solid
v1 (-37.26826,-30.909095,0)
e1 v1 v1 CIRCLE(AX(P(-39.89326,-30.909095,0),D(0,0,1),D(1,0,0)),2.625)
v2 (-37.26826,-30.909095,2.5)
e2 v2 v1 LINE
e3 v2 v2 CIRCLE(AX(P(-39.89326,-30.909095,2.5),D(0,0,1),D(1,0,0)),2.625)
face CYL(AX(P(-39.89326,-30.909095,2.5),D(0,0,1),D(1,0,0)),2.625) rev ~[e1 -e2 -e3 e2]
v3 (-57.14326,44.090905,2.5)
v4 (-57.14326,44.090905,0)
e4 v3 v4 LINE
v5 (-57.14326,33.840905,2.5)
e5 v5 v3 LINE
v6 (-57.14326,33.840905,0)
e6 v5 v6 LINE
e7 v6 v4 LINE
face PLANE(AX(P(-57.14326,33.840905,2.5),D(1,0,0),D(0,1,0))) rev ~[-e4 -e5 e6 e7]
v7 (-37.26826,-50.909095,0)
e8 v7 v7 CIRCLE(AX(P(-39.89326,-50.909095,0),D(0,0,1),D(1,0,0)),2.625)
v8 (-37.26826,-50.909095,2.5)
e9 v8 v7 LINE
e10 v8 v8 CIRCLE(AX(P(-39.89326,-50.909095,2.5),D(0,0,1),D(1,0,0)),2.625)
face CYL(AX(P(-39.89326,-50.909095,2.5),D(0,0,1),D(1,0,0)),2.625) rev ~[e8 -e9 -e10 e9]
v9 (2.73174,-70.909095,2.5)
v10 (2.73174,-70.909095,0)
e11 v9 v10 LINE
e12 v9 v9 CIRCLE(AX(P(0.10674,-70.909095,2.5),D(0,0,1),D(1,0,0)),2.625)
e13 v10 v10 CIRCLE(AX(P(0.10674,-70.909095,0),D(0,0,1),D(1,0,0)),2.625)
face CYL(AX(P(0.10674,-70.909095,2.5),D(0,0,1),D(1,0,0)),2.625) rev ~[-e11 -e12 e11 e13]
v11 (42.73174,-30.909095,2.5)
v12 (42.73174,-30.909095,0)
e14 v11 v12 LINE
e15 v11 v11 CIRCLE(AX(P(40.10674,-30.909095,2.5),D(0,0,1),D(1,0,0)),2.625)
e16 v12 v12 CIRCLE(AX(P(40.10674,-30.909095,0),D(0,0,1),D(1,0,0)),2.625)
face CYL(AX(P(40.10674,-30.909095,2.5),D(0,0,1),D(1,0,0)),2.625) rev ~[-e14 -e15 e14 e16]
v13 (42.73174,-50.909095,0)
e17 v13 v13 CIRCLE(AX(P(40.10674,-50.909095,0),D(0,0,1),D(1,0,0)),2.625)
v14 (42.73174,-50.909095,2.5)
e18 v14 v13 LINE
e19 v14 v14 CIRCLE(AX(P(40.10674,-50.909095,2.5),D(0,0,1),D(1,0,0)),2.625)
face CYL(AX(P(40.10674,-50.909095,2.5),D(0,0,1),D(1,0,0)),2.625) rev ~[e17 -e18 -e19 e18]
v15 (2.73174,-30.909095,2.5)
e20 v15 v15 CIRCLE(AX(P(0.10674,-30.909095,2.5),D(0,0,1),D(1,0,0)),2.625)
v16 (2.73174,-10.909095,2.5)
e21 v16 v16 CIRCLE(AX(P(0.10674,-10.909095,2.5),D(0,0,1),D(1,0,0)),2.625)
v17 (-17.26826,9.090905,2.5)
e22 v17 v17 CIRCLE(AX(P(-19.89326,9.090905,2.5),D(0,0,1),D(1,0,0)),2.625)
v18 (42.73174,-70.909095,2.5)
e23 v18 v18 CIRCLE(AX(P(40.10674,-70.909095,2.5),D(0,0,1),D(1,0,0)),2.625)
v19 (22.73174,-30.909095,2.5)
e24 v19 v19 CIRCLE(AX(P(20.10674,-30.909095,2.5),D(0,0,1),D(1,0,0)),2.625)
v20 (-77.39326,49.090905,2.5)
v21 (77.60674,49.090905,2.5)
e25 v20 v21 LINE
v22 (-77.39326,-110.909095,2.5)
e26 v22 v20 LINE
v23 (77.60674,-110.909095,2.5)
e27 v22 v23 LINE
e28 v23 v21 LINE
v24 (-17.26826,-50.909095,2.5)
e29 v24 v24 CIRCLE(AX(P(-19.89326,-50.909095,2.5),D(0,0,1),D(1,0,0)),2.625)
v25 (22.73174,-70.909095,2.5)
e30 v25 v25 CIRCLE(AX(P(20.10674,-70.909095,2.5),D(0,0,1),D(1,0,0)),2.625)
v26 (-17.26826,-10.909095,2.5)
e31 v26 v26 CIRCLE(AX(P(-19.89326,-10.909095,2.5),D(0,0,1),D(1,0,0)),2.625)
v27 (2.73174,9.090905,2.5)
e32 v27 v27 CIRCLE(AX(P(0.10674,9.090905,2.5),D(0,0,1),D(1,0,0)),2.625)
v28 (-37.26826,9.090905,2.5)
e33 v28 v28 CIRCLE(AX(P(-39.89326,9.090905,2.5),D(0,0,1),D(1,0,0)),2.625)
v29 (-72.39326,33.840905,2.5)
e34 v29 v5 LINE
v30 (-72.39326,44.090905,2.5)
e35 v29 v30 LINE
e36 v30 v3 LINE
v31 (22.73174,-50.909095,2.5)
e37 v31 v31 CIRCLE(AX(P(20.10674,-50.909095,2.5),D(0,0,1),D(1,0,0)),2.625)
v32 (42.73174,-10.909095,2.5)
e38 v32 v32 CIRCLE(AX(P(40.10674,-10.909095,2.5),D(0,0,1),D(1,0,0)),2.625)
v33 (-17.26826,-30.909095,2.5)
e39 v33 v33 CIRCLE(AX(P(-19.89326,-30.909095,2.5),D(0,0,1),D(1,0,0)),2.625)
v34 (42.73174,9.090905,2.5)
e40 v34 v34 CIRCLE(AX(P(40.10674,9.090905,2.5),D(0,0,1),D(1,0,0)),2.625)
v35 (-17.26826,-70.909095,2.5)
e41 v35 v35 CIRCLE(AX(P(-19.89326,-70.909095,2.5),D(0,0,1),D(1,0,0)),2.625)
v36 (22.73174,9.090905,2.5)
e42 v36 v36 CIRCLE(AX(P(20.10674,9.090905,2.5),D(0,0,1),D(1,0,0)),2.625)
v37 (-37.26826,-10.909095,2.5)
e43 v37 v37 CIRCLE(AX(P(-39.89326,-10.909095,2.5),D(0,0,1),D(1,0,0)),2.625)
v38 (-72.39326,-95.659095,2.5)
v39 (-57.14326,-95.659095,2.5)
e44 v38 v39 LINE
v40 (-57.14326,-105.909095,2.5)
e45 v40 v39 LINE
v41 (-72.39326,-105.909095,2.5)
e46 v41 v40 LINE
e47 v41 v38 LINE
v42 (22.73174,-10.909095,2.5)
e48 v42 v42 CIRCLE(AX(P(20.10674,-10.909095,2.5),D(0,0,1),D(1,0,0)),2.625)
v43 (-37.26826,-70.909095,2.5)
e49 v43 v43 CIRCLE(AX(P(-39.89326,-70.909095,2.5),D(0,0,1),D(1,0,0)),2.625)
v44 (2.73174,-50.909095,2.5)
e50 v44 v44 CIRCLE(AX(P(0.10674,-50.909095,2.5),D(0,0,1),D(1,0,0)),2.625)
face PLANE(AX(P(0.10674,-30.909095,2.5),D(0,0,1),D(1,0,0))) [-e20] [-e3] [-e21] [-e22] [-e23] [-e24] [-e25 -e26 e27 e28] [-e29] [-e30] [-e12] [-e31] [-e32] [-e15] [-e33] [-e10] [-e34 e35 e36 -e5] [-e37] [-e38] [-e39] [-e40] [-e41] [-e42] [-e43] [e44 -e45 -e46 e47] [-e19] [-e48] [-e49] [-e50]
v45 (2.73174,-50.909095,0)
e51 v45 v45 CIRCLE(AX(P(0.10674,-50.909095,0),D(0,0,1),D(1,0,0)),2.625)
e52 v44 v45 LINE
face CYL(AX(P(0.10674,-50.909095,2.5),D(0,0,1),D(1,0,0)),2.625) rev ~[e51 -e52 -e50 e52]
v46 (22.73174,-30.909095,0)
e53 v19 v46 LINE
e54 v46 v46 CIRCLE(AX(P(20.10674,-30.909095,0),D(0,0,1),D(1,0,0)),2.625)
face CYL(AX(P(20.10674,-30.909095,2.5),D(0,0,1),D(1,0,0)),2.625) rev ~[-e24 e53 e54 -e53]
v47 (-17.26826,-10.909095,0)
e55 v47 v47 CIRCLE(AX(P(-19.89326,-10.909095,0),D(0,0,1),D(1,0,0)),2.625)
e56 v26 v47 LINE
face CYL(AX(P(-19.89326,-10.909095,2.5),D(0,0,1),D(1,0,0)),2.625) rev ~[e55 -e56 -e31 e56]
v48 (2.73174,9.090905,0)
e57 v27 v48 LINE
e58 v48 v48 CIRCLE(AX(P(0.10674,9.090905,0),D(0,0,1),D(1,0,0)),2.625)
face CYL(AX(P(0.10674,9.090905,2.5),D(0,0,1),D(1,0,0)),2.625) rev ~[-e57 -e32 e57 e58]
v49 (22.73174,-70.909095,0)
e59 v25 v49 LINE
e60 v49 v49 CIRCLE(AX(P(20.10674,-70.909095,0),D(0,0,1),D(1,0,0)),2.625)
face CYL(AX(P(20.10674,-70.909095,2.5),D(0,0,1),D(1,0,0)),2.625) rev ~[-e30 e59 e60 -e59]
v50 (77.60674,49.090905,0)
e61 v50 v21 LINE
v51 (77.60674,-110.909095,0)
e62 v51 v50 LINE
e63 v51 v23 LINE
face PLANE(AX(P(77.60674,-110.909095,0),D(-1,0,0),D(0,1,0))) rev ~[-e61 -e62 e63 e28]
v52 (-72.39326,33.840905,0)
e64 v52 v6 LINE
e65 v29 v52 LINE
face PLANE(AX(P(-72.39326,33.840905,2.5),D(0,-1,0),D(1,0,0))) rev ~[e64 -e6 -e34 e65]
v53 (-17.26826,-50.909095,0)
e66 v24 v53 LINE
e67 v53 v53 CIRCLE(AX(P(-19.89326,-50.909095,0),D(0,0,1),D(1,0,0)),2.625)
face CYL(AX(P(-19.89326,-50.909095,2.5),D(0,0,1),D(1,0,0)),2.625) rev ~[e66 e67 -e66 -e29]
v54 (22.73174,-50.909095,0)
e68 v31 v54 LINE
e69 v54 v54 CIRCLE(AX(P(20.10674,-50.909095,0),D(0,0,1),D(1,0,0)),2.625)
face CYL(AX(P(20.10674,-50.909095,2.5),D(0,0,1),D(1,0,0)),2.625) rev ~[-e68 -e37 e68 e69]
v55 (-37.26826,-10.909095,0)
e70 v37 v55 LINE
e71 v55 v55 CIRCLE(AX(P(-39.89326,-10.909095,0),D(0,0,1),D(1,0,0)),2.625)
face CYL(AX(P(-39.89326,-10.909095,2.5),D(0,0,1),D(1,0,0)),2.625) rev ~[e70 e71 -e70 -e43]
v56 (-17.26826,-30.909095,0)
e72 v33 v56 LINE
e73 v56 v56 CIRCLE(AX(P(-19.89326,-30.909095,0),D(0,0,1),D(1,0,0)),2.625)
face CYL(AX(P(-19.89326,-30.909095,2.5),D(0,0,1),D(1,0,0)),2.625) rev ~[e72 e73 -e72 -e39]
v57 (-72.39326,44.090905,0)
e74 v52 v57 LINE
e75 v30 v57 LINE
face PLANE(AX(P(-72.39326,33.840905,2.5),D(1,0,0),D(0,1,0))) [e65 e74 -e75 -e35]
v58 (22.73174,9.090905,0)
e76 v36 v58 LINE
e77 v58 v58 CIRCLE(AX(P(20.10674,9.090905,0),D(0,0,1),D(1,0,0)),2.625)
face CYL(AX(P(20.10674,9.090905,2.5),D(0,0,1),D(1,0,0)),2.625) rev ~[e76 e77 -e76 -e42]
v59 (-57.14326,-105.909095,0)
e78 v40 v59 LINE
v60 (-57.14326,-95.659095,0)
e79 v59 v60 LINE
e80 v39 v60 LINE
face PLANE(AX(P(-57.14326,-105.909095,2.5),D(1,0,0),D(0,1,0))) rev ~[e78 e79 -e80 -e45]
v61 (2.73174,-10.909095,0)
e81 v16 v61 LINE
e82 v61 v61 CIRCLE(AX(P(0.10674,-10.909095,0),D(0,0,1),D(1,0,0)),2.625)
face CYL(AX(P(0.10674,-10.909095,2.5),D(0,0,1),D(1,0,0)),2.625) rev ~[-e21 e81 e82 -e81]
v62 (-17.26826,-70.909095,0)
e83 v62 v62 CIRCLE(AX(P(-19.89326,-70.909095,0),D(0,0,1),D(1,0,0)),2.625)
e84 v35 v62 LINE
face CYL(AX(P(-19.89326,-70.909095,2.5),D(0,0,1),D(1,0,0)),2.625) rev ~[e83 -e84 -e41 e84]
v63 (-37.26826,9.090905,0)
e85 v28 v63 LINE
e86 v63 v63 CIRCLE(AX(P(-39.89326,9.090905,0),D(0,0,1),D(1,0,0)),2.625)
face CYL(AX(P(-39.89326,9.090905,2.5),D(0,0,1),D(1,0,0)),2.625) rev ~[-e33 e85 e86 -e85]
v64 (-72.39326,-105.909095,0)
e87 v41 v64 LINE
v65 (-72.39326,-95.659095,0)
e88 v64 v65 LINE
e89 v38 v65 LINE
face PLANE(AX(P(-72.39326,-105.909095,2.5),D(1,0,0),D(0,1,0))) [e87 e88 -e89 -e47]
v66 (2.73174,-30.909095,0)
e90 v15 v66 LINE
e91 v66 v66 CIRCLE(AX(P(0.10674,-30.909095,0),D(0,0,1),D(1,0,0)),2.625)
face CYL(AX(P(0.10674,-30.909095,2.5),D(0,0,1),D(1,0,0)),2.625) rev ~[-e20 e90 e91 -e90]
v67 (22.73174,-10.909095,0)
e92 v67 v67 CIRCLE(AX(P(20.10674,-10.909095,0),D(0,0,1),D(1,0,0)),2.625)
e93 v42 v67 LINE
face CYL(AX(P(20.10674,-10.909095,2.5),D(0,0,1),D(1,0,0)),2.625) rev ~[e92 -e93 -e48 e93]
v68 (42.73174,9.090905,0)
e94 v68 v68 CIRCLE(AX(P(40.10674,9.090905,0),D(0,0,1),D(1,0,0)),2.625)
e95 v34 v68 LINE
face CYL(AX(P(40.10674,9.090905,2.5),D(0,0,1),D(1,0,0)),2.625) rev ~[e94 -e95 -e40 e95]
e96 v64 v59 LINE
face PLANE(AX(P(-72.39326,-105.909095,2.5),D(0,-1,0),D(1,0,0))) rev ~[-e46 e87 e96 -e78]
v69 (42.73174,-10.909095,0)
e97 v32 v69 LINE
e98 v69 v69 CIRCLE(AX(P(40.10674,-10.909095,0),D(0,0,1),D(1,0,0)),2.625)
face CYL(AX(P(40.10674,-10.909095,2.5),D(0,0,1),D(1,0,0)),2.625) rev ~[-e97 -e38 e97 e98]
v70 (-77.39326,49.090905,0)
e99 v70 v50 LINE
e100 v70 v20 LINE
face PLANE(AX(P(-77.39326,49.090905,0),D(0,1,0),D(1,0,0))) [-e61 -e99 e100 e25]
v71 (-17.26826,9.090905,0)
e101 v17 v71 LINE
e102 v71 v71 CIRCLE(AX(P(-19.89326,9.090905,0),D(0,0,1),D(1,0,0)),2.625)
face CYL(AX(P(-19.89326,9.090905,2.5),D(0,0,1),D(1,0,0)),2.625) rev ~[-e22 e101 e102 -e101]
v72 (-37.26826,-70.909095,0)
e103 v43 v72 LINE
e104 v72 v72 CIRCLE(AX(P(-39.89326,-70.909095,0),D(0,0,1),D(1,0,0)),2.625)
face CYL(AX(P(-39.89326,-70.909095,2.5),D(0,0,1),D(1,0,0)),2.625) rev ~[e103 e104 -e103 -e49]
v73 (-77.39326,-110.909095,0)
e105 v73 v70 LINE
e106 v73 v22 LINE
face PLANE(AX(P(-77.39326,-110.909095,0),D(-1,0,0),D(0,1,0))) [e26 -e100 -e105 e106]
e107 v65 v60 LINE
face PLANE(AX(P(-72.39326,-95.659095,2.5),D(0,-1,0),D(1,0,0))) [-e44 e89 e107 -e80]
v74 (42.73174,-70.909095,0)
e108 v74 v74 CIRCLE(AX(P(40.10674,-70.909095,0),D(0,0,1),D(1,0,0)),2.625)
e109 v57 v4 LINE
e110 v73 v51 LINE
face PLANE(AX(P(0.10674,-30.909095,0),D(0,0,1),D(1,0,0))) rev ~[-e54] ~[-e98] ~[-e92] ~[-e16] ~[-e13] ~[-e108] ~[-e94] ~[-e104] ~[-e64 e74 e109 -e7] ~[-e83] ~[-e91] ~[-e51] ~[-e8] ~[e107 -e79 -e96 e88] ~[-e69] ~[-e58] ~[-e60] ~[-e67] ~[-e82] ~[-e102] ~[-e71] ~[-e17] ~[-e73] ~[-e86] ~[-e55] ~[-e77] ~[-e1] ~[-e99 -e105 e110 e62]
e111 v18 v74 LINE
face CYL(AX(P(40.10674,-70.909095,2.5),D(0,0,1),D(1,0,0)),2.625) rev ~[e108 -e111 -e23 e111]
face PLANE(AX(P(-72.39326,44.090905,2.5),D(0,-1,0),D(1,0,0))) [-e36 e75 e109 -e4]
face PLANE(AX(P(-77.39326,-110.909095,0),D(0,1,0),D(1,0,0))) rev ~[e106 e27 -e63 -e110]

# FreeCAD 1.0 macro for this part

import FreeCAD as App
import Part
import Sketcher
from FreeCAD import Vector

doc = App.newDocument("Part")
body = doc.addObject("PartDesign::Body", "Body")

# Sketch on XY plane
sketch1 = body.newObject("Sketcher::SketchObject", "Sketch")
sketch1.AttachmentSupport = (doc.getObject("XY_Plane"), [""])
sketch1.MapMode = "FlatFace"
sketch1.addGeometry(Part.LineSegment(Vector(-77, 49, 0), Vector(-77, -111, 0)), False)
sketch1.addGeometry(Part.LineSegment(Vector(-77, -111, 0), Vector(78, -111, 0)), False)
sketch1.addGeometry(Part.LineSegment(Vector(78, -111, 0), Vector(78, 49, 0)), False)
sketch1.addGeometry(Part.LineSegment(Vector(78, 49, 0), Vector(-77, 49, 0)), False)
sketch1.addConstraint(Sketcher.Constraint("Coincident", 0, 2, 1, 1))
sketch1.addConstraint(Sketcher.Constraint("Coincident", 1, 2, 2, 1))
sketch1.addConstraint(Sketcher.Constraint("Coincident", 2, 2, 3, 1))
sketch1.addConstraint(Sketcher.Constraint("Coincident", 3, 2, 0, 1))
sketch1.addConstraint(Sketcher.Constraint("Vertical", 0))
sketch1.addConstraint(Sketcher.Constraint("Horizontal", 1))
sketch1.addConstraint(Sketcher.Constraint("Vertical", 2))
sketch1.addConstraint(Sketcher.Constraint("Horizontal", 3))
sketch1.addConstraint(Sketcher.Constraint("DistanceX", 1, 1, 1, 2, 155.0))
sketch1.addConstraint(Sketcher.Constraint("DistanceY", 0, 2, 0, 1, 160.0))
sketch1.addConstraint(Sketcher.Constraint("DistanceX", 0, 2, -1, 1, 77.39326))
sketch1.addConstraint(Sketcher.Constraint("DistanceY", 0, 2, -1, 1, 110.909095))
pad1 = body.newObject("PartDesign::Pad", "Pad")
pad1.Profile = sketch1
pad1.Length = 2.5

# Sketch on XY plane
sketch2 = body.newObject("Sketcher::SketchObject", "Sketch001")
sketch2.AttachmentSupport = (doc.getObject("XY_Plane"), [""])
sketch2.MapMode = "FlatFace"
sketch2.AttachmentOffset = App.Placement(Vector(0, 0, 2.5), App.Rotation())
sketch2.addGeometry(Part.LineSegment(Vector(-72, 44, 0), Vector(-72, 34, 0)), False)
sketch2.addGeometry(Part.LineSegment(Vector(-72, 34, 0), Vector(-57, 34, 0)), False)
sketch2.addGeometry(Part.LineSegment(Vector(-57, 34, 0), Vector(-57, 44, 0)), False)
sketch2.addGeometry(Part.LineSegment(Vector(-57, 44, 0), Vector(-72, 44, 0)), False)
sketch2.addGeometry(Part.LineSegment(Vector(-72, -96, 0), Vector(-72, -106, 0)), False)
sketch2.addGeometry(Part.LineSegment(Vector(-72, -106, 0), Vector(-57, -106, 0)), False)
sketch2.addGeometry(Part.LineSegment(Vector(-57, -106, 0), Vector(-57, -96, 0)), False)
sketch2.addGeometry(Part.LineSegment(Vector(-57, -96, 0), Vector(-72, -96, 0)), False)
sketch2.addConstraint(Sketcher.Constraint("Coincident", 0, 2, 1, 1))
sketch2.addConstraint(Sketcher.Constraint("Coincident", 1, 2, 2, 1))
sketch2.addConstraint(Sketcher.Constraint("Coincident", 2, 2, 3, 1))
sketch2.addConstraint(Sketcher.Constraint("Coincident", 3, 2, 0, 1))
sketch2.addConstraint(Sketcher.Constraint("Coincident", 4, 2, 5, 1))
sketch2.addConstraint(Sketcher.Constraint("Coincident", 5, 2, 6, 1))
sketch2.addConstraint(Sketcher.Constraint("Coincident", 6, 2, 7, 1))
sketch2.addConstraint(Sketcher.Constraint("Coincident", 7, 2, 4, 1))
sketch2.addConstraint(Sketcher.Constraint("Vertical", 0))
sketch2.addConstraint(Sketcher.Constraint("Horizontal", 1))
sketch2.addConstraint(Sketcher.Constraint("Vertical", 2))
sketch2.addConstraint(Sketcher.Constraint("Horizontal", 3))
sketch2.addConstraint(Sketcher.Constraint("Vertical", 4))
sketch2.addConstraint(Sketcher.Constraint("Horizontal", 5))
sketch2.addConstraint(Sketcher.Constraint("Vertical", 6))
sketch2.addConstraint(Sketcher.Constraint("Horizontal", 7))
sketch2.addConstraint(Sketcher.Constraint("Vertical", 3, 2, 4, 2))
sketch2.addConstraint(Sketcher.Constraint("Vertical", 2, 2, 5, 2))
sketch2.addConstraint(Sketcher.Constraint("Equal", 2, 4))
sketch2.addConstraint(Sketcher.Constraint("DistanceY", 4, 2, 3, 2, 150.0))
sketch2.addConstraint(Sketcher.Constraint("DistanceX", 1, 1, 1, 2, 15.25))
sketch2.addConstraint(Sketcher.Constraint("DistanceY", 0, 2, 0, 1, 10.25))
sketch2.addConstraint(Sketcher.Constraint("DistanceX", 0, 2, -1, 1, 72.39326))
sketch2.addConstraint(Sketcher.Constraint("DistanceY", -1, 1, 0, 2, 33.840905))
pocket1 = body.newObject("PartDesign::Pocket", "Pocket")
pocket1.Profile = sketch2
pocket1.Length = 2.5

# Sketch on XY plane
sketch3 = body.newObject("Sketcher::SketchObject", "Sketch002")
sketch3.AttachmentSupport = (doc.getObject("XY_Plane"), [""])
sketch3.MapMode = "FlatFace"
sketch3.AttachmentOffset = App.Placement(Vector(0, 0, 2.5), App.Rotation())
sketch3.addGeometry(Part.Circle(Vector(-19.9, -30.9, 0), Vector(0, 0, 1), 2.6), False)
sketch3.addGeometry(Part.Circle(Vector(-39.9, -30.9, 0), Vector(0, 0, 1), 2.6), False)
sketch3.addGeometry(Part.Circle(Vector(0.1, -30.9, 0), Vector(0, 0, 1), 2.6), False)
sketch3.addGeometry(Part.Circle(Vector(20.1, -30.9, 0), Vector(0, 0, 1), 2.6), False)
sketch3.addGeometry(Part.Circle(Vector(40.1, -30.9, 0), Vector(0, 0, 1), 2.6), False)
sketch3.addGeometry(Part.Circle(Vector(-39.9, -10.9, 0), Vector(0, 0, 1), 2.6), False)
sketch3.addGeometry(Part.Circle(Vector(-19.9, -10.9, 0), Vector(0, 0, 1), 2.6), False)
sketch3.addGeometry(Part.Circle(Vector(0.1, -10.9, 0), Vector(0, 0, 1), 2.6), False)
sketch3.addGeometry(Part.Circle(Vector(20.1, -10.9, 0), Vector(0, 0, 1), 2.6), False)
sketch3.addGeometry(Part.Circle(Vector(40.1, -10.9, 0), Vector(0, 0, 1), 2.6), False)
sketch3.addGeometry(Part.Circle(Vector(-39.9, -50.9, 0), Vector(0, 0, 1), 2.6), False)
sketch3.addGeometry(Part.Circle(Vector(-19.9, -50.9, 0), Vector(0, 0, 1), 2.6), False)
sketch3.addGeometry(Part.Circle(Vector(0.1, -50.9, 0), Vector(0, 0, 1), 2.6), False)
sketch3.addGeometry(Part.Circle(Vector(20.1, -50.9, 0), Vector(0, 0, 1), 2.6), False)
sketch3.addGeometry(Part.Circle(Vector(40.1, -50.9, 0), Vector(0, 0, 1), 2.6), False)
sketch3.addGeometry(Part.Circle(Vector(-39.9, -70.9, 0), Vector(0, 0, 1), 2.6), False)
sketch3.addGeometry(Part.Circle(Vector(-19.9, -70.9, 0), Vector(0, 0, 1), 2.6), False)
sketch3.addGeometry(Part.Circle(Vector(0.1, -70.9, 0), Vector(0, 0, 1), 2.6), False)
sketch3.addGeometry(Part.Circle(Vector(20.1, -70.9, 0), Vector(0, 0, 1), 2.6), False)
sketch3.addGeometry(Part.Circle(Vector(40.1, -70.9, 0), Vector(0, 0, 1), 2.6), False)
sketch3.addGeometry(Part.Circle(Vector(-39.9, 9.1, 0), Vector(0, 0, 1), 2.6), False)
sketch3.addGeometry(Part.Circle(Vector(-19.9, 9.1, 0), Vector(0, 0, 1), 2.6), False)
sketch3.addGeometry(Part.Circle(Vector(0.1, 9.1, 0), Vector(0, 0, 1), 2.6), False)
sketch3.addGeometry(Part.Circle(Vector(20.1, 9.1, 0), Vector(0, 0, 1), 2.6), False)
sketch3.addGeometry(Part.Circle(Vector(40.1, 9.1, 0), Vector(0, 0, 1), 2.6), False)
sketch3.addConstraint(Sketcher.Constraint("Equal", 0, 1))
sketch3.addConstraint(Sketcher.Constraint("Equal", 1, 2))
sketch3.addConstraint(Sketcher.Constraint("Equal", 2, 3))
sketch3.addConstraint(Sketcher.Constraint("Equal", 3, 4))
sketch3.addConstraint(Sketcher.Constraint("Equal", 4, 5))
sketch3.addConstraint(Sketcher.Constraint("Equal", 5, 6))
sketch3.addConstraint(Sketcher.Constraint("Equal", 6, 7))
sketch3.addConstraint(Sketcher.Constraint("Equal", 7, 8))
sketch3.addConstraint(Sketcher.Constraint("Equal", 8, 9))
sketch3.addConstraint(Sketcher.Constraint("Equal", 9, 10))
sketch3.addConstraint(Sketcher.Constraint("Equal", 10, 11))
sketch3.addConstraint(Sketcher.Constraint("Equal", 11, 12))
sketch3.addConstraint(Sketcher.Constraint("Equal", 12, 13))
sketch3.addConstraint(Sketcher.Constraint("Equal", 13, 14))
sketch3.addConstraint(Sketcher.Constraint("Equal", 14, 15))
sketch3.addConstraint(Sketcher.Constraint("Equal", 15, 16))
sketch3.addConstraint(Sketcher.Constraint("Equal", 16, 17))
sketch3.addConstraint(Sketcher.Constraint("Equal", 17, 18))
sketch3.addConstraint(Sketcher.Constraint("Equal", 18, 19))
sketch3.addConstraint(Sketcher.Constraint("Equal", 19, 20))
sketch3.addConstraint(Sketcher.Constraint("Equal", 20, 21))
sketch3.addConstraint(Sketcher.Constraint("Equal", 21, 22))
sketch3.addConstraint(Sketcher.Constraint("Equal", 22, 23))
sketch3.addConstraint(Sketcher.Constraint("Equal", 23, 24))
sketch3.addConstraint(Sketcher.Constraint("Horizontal", 0, 3, 1, 3))
sketch3.addConstraint(Sketcher.Constraint("Horizontal", 1, 3, 2, 3))
sketch3.addConstraint(Sketcher.Constraint("Horizontal", 2, 3, 3, 3))
sketch3.addConstraint(Sketcher.Constraint("Horizontal", 3, 3, 4, 3))
sketch3.addConstraint(Sketcher.Constraint("Horizontal", 5, 3, 6, 3))
sketch3.addConstraint(Sketcher.Constraint("Horizontal", 6, 3, 7, 3))
sketch3.addConstraint(Sketcher.Constraint("Horizontal", 7, 3, 8, 3))
sketch3.addConstraint(Sketcher.Constraint("Horizontal", 8, 3, 9, 3))
sketch3.addConstraint(Sketcher.Constraint("Horizontal", 10, 3, 11, 3))
sketch3.addConstraint(Sketcher.Constraint("Horizontal", 11, 3, 12, 3))
sketch3.addConstraint(Sketcher.Constraint("Horizontal", 12, 3, 13, 3))
sketch3.addConstraint(Sketcher.Constraint("Horizontal", 13, 3, 14, 3))
sketch3.addConstraint(Sketcher.Constraint("Horizontal", 15, 3, 16, 3))
sketch3.addConstraint(Sketcher.Constraint("Horizontal", 16, 3, 17, 3))
sketch3.addConstraint(Sketcher.Constraint("Horizontal", 17, 3, 18, 3))
sketch3.addConstraint(Sketcher.Constraint("Horizontal", 18, 3, 19, 3))
sketch3.addConstraint(Sketcher.Constraint("Horizontal", 20, 3, 21, 3))
sketch3.addConstraint(Sketcher.Constraint("Horizontal", 21, 3, 22, 3))
sketch3.addConstraint(Sketcher.Constraint("Horizontal", 22, 3, 23, 3))
sketch3.addConstraint(Sketcher.Constraint("Horizontal", 23, 3, 24, 3))
sketch3.addConstraint(Sketcher.Constraint("Vertical", 1, 3, 5, 3))
sketch3.addConstraint(Sketcher.Constraint("Vertical", 0, 3, 6, 3))
sketch3.addConstraint(Sketcher.Constraint("Vertical", 2, 3, 7, 3))
sketch3.addConstraint(Sketcher.Constraint("Vertical", 3, 3, 8, 3))
sketch3.addConstraint(Sketcher.Constraint("Vertical", 4, 3, 9, 3))
sketch3.addConstraint(Sketcher.Constraint("Vertical", 5, 3, 10, 3))
sketch3.addConstraint(Sketcher.Constraint("Vertical", 6, 3, 11, 3))
sketch3.addConstraint(Sketcher.Constraint("Vertical", 7, 3, 12, 3))
sketch3.addConstraint(Sketcher.Constraint("Vertical", 8, 3, 13, 3))
sketch3.addConstraint(Sketcher.Constraint("Vertical", 9, 3, 14, 3))
sketch3.addConstraint(Sketcher.Constraint("Vertical", 10, 3, 15, 3))
sketch3.addConstraint(Sketcher.Constraint("Vertical", 11, 3, 16, 3))
sketch3.addConstraint(Sketcher.Constraint("Vertical", 12, 3, 17, 3))
sketch3.addConstraint(Sketcher.Constraint("Vertical", 13, 3, 18, 3))
sketch3.addConstraint(Sketcher.Constraint("Vertical", 14, 3, 19, 3))
sketch3.addConstraint(Sketcher.Constraint("Vertical", 15, 3, 20, 3))
sketch3.addConstraint(Sketcher.Constraint("Vertical", 16, 3, 21, 3))
sketch3.addConstraint(Sketcher.Constraint("Vertical", 17, 3, 22, 3))
sketch3.addConstraint(Sketcher.Constraint("Vertical", 18, 3, 23, 3))
sketch3.addConstraint(Sketcher.Constraint("Vertical", 19, 3, 24, 3))
sketch3.addConstraint(Sketcher.Constraint("Diameter", 0, 5.25))
sketch3.addConstraint(Sketcher.Constraint("DistanceX", 1, 3, 0, 3, 20.0))
sketch3.addConstraint(Sketcher.Constraint("DistanceX", 0, 3, 2, 3, 20.0))
sketch3.addConstraint(Sketcher.Constraint("DistanceX", 2, 3, 3, 3, 20.0))
sketch3.addConstraint(Sketcher.Constraint("DistanceX", 3, 3, 4, 3, 20.0))
sketch3.addConstraint(Sketcher.Constraint("DistanceY", 1, 3, 5, 3, 20.0))
sketch3.addConstraint(Sketcher.Constraint("DistanceY", 10, 3, 1, 3, 20.0))
sketch3.addConstraint(Sketcher.Constraint("DistanceY", 15, 3, 10, 3, 20.0))
sketch3.addConstraint(Sketcher.Constraint("DistanceY", 5, 3, 20, 3, 20.0))
sketch3.addConstraint(Sketcher.Constraint("DistanceX", 0, 3, -1, 1, 19.89326))
sketch3.addConstraint(Sketcher.Constraint("DistanceY", 0, 3, -1, 1, 30.909095))
pocket2 = body.newObject("PartDesign::Pocket", "Pocket001")
pocket2.Profile = sketch3
pocket2.Length = 2.5

doc.recompute()
